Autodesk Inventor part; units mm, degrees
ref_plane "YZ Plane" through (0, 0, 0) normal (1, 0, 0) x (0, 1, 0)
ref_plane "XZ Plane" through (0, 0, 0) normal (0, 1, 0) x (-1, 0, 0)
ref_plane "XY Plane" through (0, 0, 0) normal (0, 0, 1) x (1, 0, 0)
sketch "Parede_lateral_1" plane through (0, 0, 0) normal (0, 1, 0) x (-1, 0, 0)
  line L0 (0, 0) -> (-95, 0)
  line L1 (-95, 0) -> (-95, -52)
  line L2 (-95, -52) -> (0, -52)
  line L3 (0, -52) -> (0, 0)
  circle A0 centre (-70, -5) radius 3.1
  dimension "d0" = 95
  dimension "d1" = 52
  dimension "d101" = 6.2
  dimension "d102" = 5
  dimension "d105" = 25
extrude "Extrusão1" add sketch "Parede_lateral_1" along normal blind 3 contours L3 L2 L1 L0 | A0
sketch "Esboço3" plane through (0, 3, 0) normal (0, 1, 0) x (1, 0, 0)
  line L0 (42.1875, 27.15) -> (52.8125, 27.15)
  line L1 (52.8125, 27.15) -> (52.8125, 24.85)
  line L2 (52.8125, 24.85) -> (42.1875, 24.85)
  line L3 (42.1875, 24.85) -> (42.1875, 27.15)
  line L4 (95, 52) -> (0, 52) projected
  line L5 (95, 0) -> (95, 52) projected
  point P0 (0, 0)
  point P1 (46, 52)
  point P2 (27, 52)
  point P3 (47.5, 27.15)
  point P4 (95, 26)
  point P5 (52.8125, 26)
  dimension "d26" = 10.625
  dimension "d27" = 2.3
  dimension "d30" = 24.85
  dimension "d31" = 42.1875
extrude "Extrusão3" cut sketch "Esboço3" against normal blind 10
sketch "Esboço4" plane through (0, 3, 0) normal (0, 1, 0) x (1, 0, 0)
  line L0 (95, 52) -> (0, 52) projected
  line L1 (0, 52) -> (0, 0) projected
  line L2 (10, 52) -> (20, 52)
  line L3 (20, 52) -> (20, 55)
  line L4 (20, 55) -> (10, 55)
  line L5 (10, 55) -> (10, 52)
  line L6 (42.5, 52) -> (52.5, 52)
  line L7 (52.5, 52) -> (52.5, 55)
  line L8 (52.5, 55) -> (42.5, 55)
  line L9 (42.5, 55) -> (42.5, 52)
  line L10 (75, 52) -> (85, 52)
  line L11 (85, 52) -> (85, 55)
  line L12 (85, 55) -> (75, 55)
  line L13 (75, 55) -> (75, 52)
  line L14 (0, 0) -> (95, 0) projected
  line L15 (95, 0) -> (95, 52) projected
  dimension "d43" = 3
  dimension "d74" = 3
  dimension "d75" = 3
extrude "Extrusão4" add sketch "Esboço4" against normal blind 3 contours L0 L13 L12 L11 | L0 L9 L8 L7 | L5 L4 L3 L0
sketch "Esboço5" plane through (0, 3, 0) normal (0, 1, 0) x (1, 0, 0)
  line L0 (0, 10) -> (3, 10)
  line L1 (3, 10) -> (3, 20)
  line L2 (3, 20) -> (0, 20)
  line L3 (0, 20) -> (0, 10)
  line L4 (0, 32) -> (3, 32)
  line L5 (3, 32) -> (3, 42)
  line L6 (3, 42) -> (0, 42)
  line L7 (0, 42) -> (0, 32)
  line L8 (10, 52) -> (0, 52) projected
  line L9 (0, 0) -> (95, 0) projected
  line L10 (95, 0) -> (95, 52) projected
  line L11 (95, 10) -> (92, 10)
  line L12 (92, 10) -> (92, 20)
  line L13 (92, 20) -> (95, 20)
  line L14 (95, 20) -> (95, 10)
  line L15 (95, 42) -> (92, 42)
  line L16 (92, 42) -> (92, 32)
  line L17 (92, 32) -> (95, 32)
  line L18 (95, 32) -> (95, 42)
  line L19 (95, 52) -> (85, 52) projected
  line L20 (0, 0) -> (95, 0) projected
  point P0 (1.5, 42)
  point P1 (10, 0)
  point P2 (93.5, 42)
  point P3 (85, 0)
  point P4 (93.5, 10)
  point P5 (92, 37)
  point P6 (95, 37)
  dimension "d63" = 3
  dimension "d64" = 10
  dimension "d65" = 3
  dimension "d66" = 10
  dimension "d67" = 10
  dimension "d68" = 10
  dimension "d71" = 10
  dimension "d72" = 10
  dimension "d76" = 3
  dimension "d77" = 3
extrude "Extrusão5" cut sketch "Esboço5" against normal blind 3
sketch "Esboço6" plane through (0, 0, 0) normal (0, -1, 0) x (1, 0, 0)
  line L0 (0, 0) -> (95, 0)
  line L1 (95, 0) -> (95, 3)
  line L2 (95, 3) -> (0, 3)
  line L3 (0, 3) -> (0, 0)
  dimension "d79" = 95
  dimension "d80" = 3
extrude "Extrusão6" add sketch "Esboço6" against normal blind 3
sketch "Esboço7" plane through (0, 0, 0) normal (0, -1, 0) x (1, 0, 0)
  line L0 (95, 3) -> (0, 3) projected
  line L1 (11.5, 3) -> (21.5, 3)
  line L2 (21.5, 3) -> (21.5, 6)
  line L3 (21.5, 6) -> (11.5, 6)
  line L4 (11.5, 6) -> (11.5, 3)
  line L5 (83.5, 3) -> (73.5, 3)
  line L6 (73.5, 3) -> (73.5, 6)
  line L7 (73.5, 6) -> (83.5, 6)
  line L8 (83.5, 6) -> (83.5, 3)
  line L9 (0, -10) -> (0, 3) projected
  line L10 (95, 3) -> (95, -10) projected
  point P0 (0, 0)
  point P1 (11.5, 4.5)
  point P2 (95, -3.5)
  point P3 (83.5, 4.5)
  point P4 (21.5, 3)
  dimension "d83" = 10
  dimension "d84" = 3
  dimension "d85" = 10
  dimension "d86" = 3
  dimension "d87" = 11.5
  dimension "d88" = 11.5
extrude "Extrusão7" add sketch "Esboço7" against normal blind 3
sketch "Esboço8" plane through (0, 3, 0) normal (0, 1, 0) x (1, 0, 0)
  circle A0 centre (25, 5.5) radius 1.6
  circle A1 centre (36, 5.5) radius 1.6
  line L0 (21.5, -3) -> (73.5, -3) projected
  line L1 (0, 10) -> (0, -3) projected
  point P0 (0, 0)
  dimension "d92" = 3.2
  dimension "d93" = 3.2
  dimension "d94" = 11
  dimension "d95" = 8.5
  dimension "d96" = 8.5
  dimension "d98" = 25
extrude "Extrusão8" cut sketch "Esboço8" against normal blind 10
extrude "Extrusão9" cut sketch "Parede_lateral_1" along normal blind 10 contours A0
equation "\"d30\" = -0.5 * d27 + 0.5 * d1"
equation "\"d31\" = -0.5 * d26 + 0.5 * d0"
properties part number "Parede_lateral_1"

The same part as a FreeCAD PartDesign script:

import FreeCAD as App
import Part
import Sketcher

doc = App.newDocument("Part")
params = doc.addObject("Spreadsheet::Sheet", "Params")
for row, (alias, value) in enumerate([
    ("sketch1_width", "95 mm"),
    ("sketch1_height", "52 mm"),
    ("pad1_length", "3 mm"),
    ("sketch2_height", "2.3 mm"),
    ("pocket1_length", "10 mm"),
    ("sketch3_height", "3 mm"),
    ("sketch3_width", "10 mm"),
    ("pad2_length", "3 mm"),
    ("sketch4_width", "3 mm"),
    ("sketch4_height", "10 mm"),
    ("pocket2_length", "3 mm"),
    ("sketch5_width", "95 mm"),
    ("sketch5_height", "3 mm"),
    ("pad3_length", "3 mm"),
    ("sketch6_width", "10 mm"),
    ("sketch6_height", "3 mm"),
    ("pad4_length", "3 mm"),
    ("sketch7_diameter", "3.2 mm"),
    ("pocket3_length", "10 mm"),
    ("sketch8_diameter", "6.2 mm"),
    ("pocket4_length", "10 mm"),
], start=1):
    params.set(f"A{row}", alias)
    params.set(f"B{row}", "=" + value)
    params.setAlias(f"B{row}", alias)

body = doc.addObject("PartDesign::Body", "Body")

sketch1 = body.newObject("Sketcher::SketchObject", "Sketch")
sketch1.AttachmentSupport = (doc.getObject("XZ_Plane"), [""])
sketch1.MapMode = "FlatFace"
sketch1.addGeometry(Part.LineSegment(App.Vector(0, -52, 0), App.Vector(0, 0, 0)), False)
sketch1.addGeometry(Part.LineSegment(App.Vector(0, 0, 0), App.Vector(95, 0, 0)), False)
sketch1.addGeometry(Part.LineSegment(App.Vector(95, 0, 0), App.Vector(95, -52, 0)), False)
sketch1.addGeometry(Part.LineSegment(App.Vector(95, -52, 0), App.Vector(0, -52, 0)), False)
sketch1.addConstraint(Sketcher.Constraint("Coincident", 0, 2, 1, 1))
sketch1.addConstraint(Sketcher.Constraint("Coincident", 1, 2, 2, 1))
sketch1.addConstraint(Sketcher.Constraint("Coincident", 2, 2, 3, 1))
sketch1.addConstraint(Sketcher.Constraint("Coincident", 3, 2, 0, 1))
sketch1.addConstraint(Sketcher.Constraint("Vertical", 0))
sketch1.addConstraint(Sketcher.Constraint("Horizontal", 1))
sketch1.addConstraint(Sketcher.Constraint("Vertical", 2))
sketch1.addConstraint(Sketcher.Constraint("Horizontal", 3))
sketch1.addConstraint(Sketcher.Constraint("Coincident", 0, 2, -1, 1))
sketch1.addConstraint(Sketcher.Constraint("DistanceX", 1, 1, 1, 2, 95.0))
sketch1.addConstraint(Sketcher.Constraint("DistanceY", 0, 1, 0, 2, 52.0))
sketch1.setExpression("Constraints[9]", "Params.sketch1_width")
sketch1.setExpression("Constraints[10]", "Params.sketch1_height")
pad1 = body.newObject("PartDesign::Pad", "Pad")
pad1.Profile = sketch1
pad1.setExpression("Length", "Params.pad1_length")
pad1.Reversed = True

sketch2 = body.newObject("Sketcher::SketchObject", "Sketch001")
sketch2.AttachmentSupport = (doc.getObject("XZ_Plane"), [""])
sketch2.MapMode = "FlatFace"
sketch2.AttachmentOffset = App.Placement(App.Vector(0, 0, -3), App.Rotation())
sketch2.addGeometry(Part.LineSegment(App.Vector(52.8125, -27.15, 0), App.Vector(42.1875, -27.15, 0)), False)
sketch2.addGeometry(Part.LineSegment(App.Vector(42.1875, -27.15, 0), App.Vector(42.1875, -24.85, 0)), False)
sketch2.addGeometry(Part.LineSegment(App.Vector(42.1875, -24.85, 0), App.Vector(52.8125, -24.85, 0)), False)
sketch2.addGeometry(Part.LineSegment(App.Vector(52.8125, -24.85, 0), App.Vector(52.8125, -27.15, 0)), False)
sketch2.addConstraint(Sketcher.Constraint("Coincident", 0, 2, 1, 1))
sketch2.addConstraint(Sketcher.Constraint("Coincident", 1, 2, 2, 1))
sketch2.addConstraint(Sketcher.Constraint("Coincident", 2, 2, 3, 1))
sketch2.addConstraint(Sketcher.Constraint("Coincident", 3, 2, 0, 1))
sketch2.addConstraint(Sketcher.Constraint("Horizontal", 0))
sketch2.addConstraint(Sketcher.Constraint("Vertical", 1))
sketch2.addConstraint(Sketcher.Constraint("Horizontal", 2))
sketch2.addConstraint(Sketcher.Constraint("Vertical", 3))
sketch2.addConstraint(Sketcher.Constraint("DistanceY", 1, 1, 1, 2, 2.3))
sketch2.addConstraint(Sketcher.Constraint("DistanceX", 0, 2, 0, 1, 10.625))
sketch2.addConstraint(Sketcher.Constraint("DistanceY", 1, 2, -1, 1, 24.85))
sketch2.addConstraint(Sketcher.Constraint("DistanceX", -1, 1, 0, 2, 42.1875))
sketch2.setExpression("Constraints[8]", "Params.sketch2_height")
pocket1 = body.newObject("PartDesign::Pocket", "Pocket")
pocket1.Profile = sketch2
pocket1.setExpression("Length", "Params.pocket1_length")
pocket1.Reversed = True

sketch3 = body.newObject("Sketcher::SketchObject", "Sketch002")
sketch3.AttachmentSupport = (doc.getObject("XZ_Plane"), [""])
sketch3.MapMode = "FlatFace"
sketch3.AttachmentOffset = App.Placement(App.Vector(0, 0, -3), App.Rotation())
sketch3.addGeometry(Part.LineSegment(App.Vector(75, -52, 0), App.Vector(85, -52, 0)), False)
sketch3.addGeometry(Part.LineSegment(App.Vector(85, -52, 0), App.Vector(85, -55, 0)), False)
sketch3.addGeometry(Part.LineSegment(App.Vector(85, -55, 0), App.Vector(75, -55, 0)), False)
sketch3.addGeometry(Part.LineSegment(App.Vector(75, -55, 0), App.Vector(75, -52, 0)), False)
sketch3.addGeometry(Part.LineSegment(App.Vector(42.5, -52, 0), App.Vector(52.5, -52, 0)), False)
sketch3.addGeometry(Part.LineSegment(App.Vector(52.5, -52, 0), App.Vector(52.5, -55, 0)), False)
sketch3.addGeometry(Part.LineSegment(App.Vector(52.5, -55, 0), App.Vector(42.5, -55, 0)), False)
sketch3.addGeometry(Part.LineSegment(App.Vector(42.5, -55, 0), App.Vector(42.5, -52, 0)), False)
sketch3.addGeometry(Part.LineSegment(App.Vector(10, -55, 0), App.Vector(10, -52, 0)), False)
sketch3.addGeometry(Part.LineSegment(App.Vector(10, -52, 0), App.Vector(20, -52, 0)), False)
sketch3.addGeometry(Part.LineSegment(App.Vector(20, -52, 0), App.Vector(20, -55, 0)), False)
sketch3.addGeometry(Part.LineSegment(App.Vector(20, -55, 0), App.Vector(10, -55, 0)), False)
sketch3.addConstraint(Sketcher.Constraint("Coincident", 0, 2, 1, 1))
sketch3.addConstraint(Sketcher.Constraint("Coincident", 1, 2, 2, 1))
sketch3.addConstraint(Sketcher.Constraint("Coincident", 2, 2, 3, 1))
sketch3.addConstraint(Sketcher.Constraint("Coincident", 3, 2, 0, 1))
sketch3.addConstraint(Sketcher.Constraint("Coincident", 4, 2, 5, 1))
sketch3.addConstraint(Sketcher.Constraint("Coincident", 5, 2, 6, 1))
sketch3.addConstraint(Sketcher.Constraint("Coincident", 6, 2, 7, 1))
sketch3.addConstraint(Sketcher.Constraint("Coincident", 7, 2, 4, 1))
sketch3.addConstraint(Sketcher.Constraint("Coincident", 8, 2, 9, 1))
sketch3.addConstraint(Sketcher.Constraint("Coincident", 9, 2, 10, 1))
sketch3.addConstraint(Sketcher.Constraint("Coincident", 10, 2, 11, 1))
sketch3.addConstraint(Sketcher.Constraint("Coincident", 11, 2, 8, 1))
sketch3.addConstraint(Sketcher.Constraint("Horizontal", 0))
sketch3.addConstraint(Sketcher.Constraint("Vertical", 1))
sketch3.addConstraint(Sketcher.Constraint("Horizontal", 2))
sketch3.addConstraint(Sketcher.Constraint("Vertical", 3))
sketch3.addConstraint(Sketcher.Constraint("Horizontal", 4))
sketch3.addConstraint(Sketcher.Constraint("Vertical", 5))
sketch3.addConstraint(Sketcher.Constraint("Horizontal", 6))
sketch3.addConstraint(Sketcher.Constraint("Vertical", 7))
sketch3.addConstraint(Sketcher.Constraint("Vertical", 8))
sketch3.addConstraint(Sketcher.Constraint("Horizontal", 9))
sketch3.addConstraint(Sketcher.Constraint("Vertical", 10))
sketch3.addConstraint(Sketcher.Constraint("Horizontal", 11))
sketch3.addConstraint(Sketcher.Constraint("Horizontal", 3, 2, 4, 2))
sketch3.addConstraint(Sketcher.Constraint("Horizontal", 2, 2, 5, 2))
sketch3.addConstraint(Sketcher.Constraint("Horizontal", 7, 2, 8, 2))
sketch3.addConstraint(Sketcher.Constraint("Horizontal", 6, 2, 10, 2))
sketch3.addConstraint(Sketcher.Constraint("Equal", 2, 4))
sketch3.addConstraint(Sketcher.Constraint("Equal", 6, 9))
sketch3.addConstraint(Sketcher.Constraint("DistanceY", 1, 2, 1, 1, 3.0))
sketch3.addConstraint(Sketcher.Constraint("DistanceX", 0, 1, 0, 2, 10.0))
sketch3.addConstraint(Sketcher.Constraint("DistanceX", -1, 1, 0, 2, 85.0))
sketch3.addConstraint(Sketcher.Constraint("DistanceY", 0, 2, -1, 1, 52.0))
sketch3.addConstraint(Sketcher.Constraint("DistanceX", -1, 1, 8, 2, 10.0))
sketch3.addConstraint(Sketcher.Constraint("DistanceX", -1, 1, 4, 2, 52.5))
sketch3.setExpression("Constraints[30]", "Params.sketch3_height")
sketch3.setExpression("Constraints[31]", "Params.sketch3_width")
pad2 = body.newObject("PartDesign::Pad", "Pad001")
pad2.Profile = sketch3
pad2.setExpression("Length", "Params.pad2_length")

sketch4 = body.newObject("Sketcher::SketchObject", "Sketch003")
sketch4.AttachmentSupport = (doc.getObject("XZ_Plane"), [""])
sketch4.MapMode = "FlatFace"
sketch4.AttachmentOffset = App.Placement(App.Vector(0, 0, -3), App.Rotation())
sketch4.addGeometry(Part.LineSegment(App.Vector(0, -20, 0), App.Vector(0, -10, 0)), False)
sketch4.addGeometry(Part.LineSegment(App.Vector(0, -10, 0), App.Vector(3, -10, 0)), False)
sketch4.addGeometry(Part.LineSegment(App.Vector(3, -10, 0), App.Vector(3, -20, 0)), False)
sketch4.addGeometry(Part.LineSegment(App.Vector(3, -20, 0), App.Vector(0, -20, 0)), False)
sketch4.addGeometry(Part.LineSegment(App.Vector(0, -42, 0), App.Vector(0, -32, 0)), False)
sketch4.addGeometry(Part.LineSegment(App.Vector(0, -32, 0), App.Vector(3, -32, 0)), False)
sketch4.addGeometry(Part.LineSegment(App.Vector(3, -32, 0), App.Vector(3, -42, 0)), False)
sketch4.addGeometry(Part.LineSegment(App.Vector(3, -42, 0), App.Vector(0, -42, 0)), False)
sketch4.addGeometry(Part.LineSegment(App.Vector(92, -10, 0), App.Vector(95, -10, 0)), False)
sketch4.addGeometry(Part.LineSegment(App.Vector(95, -10, 0), App.Vector(95, -20, 0)), False)
sketch4.addGeometry(Part.LineSegment(App.Vector(95, -20, 0), App.Vector(92, -20, 0)), False)
sketch4.addGeometry(Part.LineSegment(App.Vector(92, -20, 0), App.Vector(92, -10, 0)), False)
sketch4.addGeometry(Part.LineSegment(App.Vector(92, -32, 0), App.Vector(95, -32, 0)), False)
sketch4.addGeometry(Part.LineSegment(App.Vector(95, -32, 0), App.Vector(95, -42, 0)), False)
sketch4.addGeometry(Part.LineSegment(App.Vector(95, -42, 0), App.Vector(92, -42, 0)), False)
sketch4.addGeometry(Part.LineSegment(App.Vector(92, -42, 0), App.Vector(92, -32, 0)), False)
sketch4.addConstraint(Sketcher.Constraint("Coincident", 0, 2, 1, 1))
sketch4.addConstraint(Sketcher.Constraint("Coincident", 1, 2, 2, 1))
sketch4.addConstraint(Sketcher.Constraint("Coincident", 2, 2, 3, 1))
sketch4.addConstraint(Sketcher.Constraint("Coincident", 3, 2, 0, 1))
sketch4.addConstraint(Sketcher.Constraint("Coincident", 4, 2, 5, 1))
sketch4.addConstraint(Sketcher.Constraint("Coincident", 5, 2, 6, 1))
sketch4.addConstraint(Sketcher.Constraint("Coincident", 6, 2, 7, 1))
sketch4.addConstraint(Sketcher.Constraint("Coincident", 7, 2, 4, 1))
sketch4.addConstraint(Sketcher.Constraint("Coincident", 8, 2, 9, 1))
sketch4.addConstraint(Sketcher.Constraint("Coincident", 9, 2, 10, 1))
sketch4.addConstraint(Sketcher.Constraint("Coincident", 10, 2, 11, 1))
sketch4.addConstraint(Sketcher.Constraint("Coincident", 11, 2, 8, 1))
sketch4.addConstraint(Sketcher.Constraint("Coincident", 12, 2, 13, 1))
sketch4.addConstraint(Sketcher.Constraint("Coincident", 13, 2, 14, 1))
sketch4.addConstraint(Sketcher.Constraint("Coincident", 14, 2, 15, 1))
sketch4.addConstraint(Sketcher.Constraint("Coincident", 15, 2, 12, 1))
sketch4.addConstraint(Sketcher.Constraint("Vertical", 0))
sketch4.addConstraint(Sketcher.Constraint("Horizontal", 1))
sketch4.addConstraint(Sketcher.Constraint("Vertical", 2))
sketch4.addConstraint(Sketcher.Constraint("Horizontal", 3))
sketch4.addConstraint(Sketcher.Constraint("Vertical", 4))
sketch4.addConstraint(Sketcher.Constraint("Horizontal", 5))
sketch4.addConstraint(Sketcher.Constraint("Vertical", 6))
sketch4.addConstraint(Sketcher.Constraint("Horizontal", 7))
sketch4.addConstraint(Sketcher.Constraint("Horizontal", 8))
sketch4.addConstraint(Sketcher.Constraint("Vertical", 9))
sketch4.addConstraint(Sketcher.Constraint("Horizontal", 10))
sketch4.addConstraint(Sketcher.Constraint("Vertical", 11))
sketch4.addConstraint(Sketcher.Constraint("Horizontal", 12))
sketch4.addConstraint(Sketcher.Constraint("Vertical", 13))
sketch4.addConstraint(Sketcher.Constraint("Horizontal", 14))
sketch4.addConstraint(Sketcher.Constraint("Vertical", 15))
sketch4.addConstraint(Sketcher.Constraint("PointOnObject", 0, 2, -2))
sketch4.addConstraint(Sketcher.Constraint("PointOnObject", 4, 2, -2))
sketch4.addConstraint(Sketcher.Constraint("Horizontal", 1, 2, 8, 2))
sketch4.addConstraint(Sketcher.Constraint("Horizontal", 3, 2, 9, 2))
sketch4.addConstraint(Sketcher.Constraint("Horizontal", 5, 2, 12, 2))
sketch4.addConstraint(Sketcher.Constraint("Horizontal", 7, 2, 13, 2))
sketch4.addConstraint(Sketcher.Constraint("Vertical", 2, 2, 5, 2))
sketch4.addConstraint(Sketcher.Constraint("Vertical", 9, 2, 12, 2))
sketch4.addConstraint(Sketcher.Constraint("Vertical", 11, 2, 14, 2))
sketch4.addConstraint(Sketcher.Constraint("Equal", 7, 8))
sketch4.addConstraint(Sketcher.Constraint("Equal", 2, 4))
sketch4.addConstraint(Sketcher.Constraint("DistanceX", 1, 1, 1, 2, 3.0))
sketch4.addConstraint(Sketcher.Constraint("DistanceY", 0, 1, 0, 2, 10.0))
sketch4.addConstraint(Sketcher.Constraint("DistanceY", 0, 2, -1, 1, 10.0))
sketch4.addConstraint(Sketcher.Constraint("DistanceY", 4, 2, -1, 1, 32.0))
sketch4.addConstraint(Sketcher.Constraint("DistanceX", -1, 1, 8, 2, 95.0))
sketch4.setExpression("Constraints[43]", "Params.sketch4_width")
sketch4.setExpression("Constraints[44]", "Params.sketch4_height")
pocket2 = body.newObject("PartDesign::Pocket", "Pocket001")
pocket2.Profile = sketch4
pocket2.setExpression("Length", "Params.pocket2_length")
pocket2.Reversed = True

sketch5 = body.newObject("Sketcher::SketchObject", "Sketch004")
sketch5.AttachmentSupport = (doc.getObject("XZ_Plane"), [""])
sketch5.MapMode = "FlatFace"
sketch5.addGeometry(Part.LineSegment(App.Vector(0, 3, 0), App.Vector(0, 0, 0)), False)
sketch5.addGeometry(Part.LineSegment(App.Vector(0, 0, 0), App.Vector(95, 0, 0)), False)
sketch5.addGeometry(Part.LineSegment(App.Vector(95, 0, 0), App.Vector(95, 3, 0)), False)
sketch5.addGeometry(Part.LineSegment(App.Vector(95, 3, 0), App.Vector(0, 3, 0)), False)
sketch5.addConstraint(Sketcher.Constraint("Coincident", 0, 2, 1, 1))
sketch5.addConstraint(Sketcher.Constraint("Coincident", 1, 2, 2, 1))
sketch5.addConstraint(Sketcher.Constraint("Coincident", 2, 2, 3, 1))
sketch5.addConstraint(Sketcher.Constraint("Coincident", 3, 2, 0, 1))
sketch5.addConstraint(Sketcher.Constraint("Vertical", 0))
sketch5.addConstraint(Sketcher.Constraint("Horizontal", 1))
sketch5.addConstraint(Sketcher.Constraint("Vertical", 2))
sketch5.addConstraint(Sketcher.Constraint("Horizontal", 3))
sketch5.addConstraint(Sketcher.Constraint("Coincident", 0, 2, -1, 1))
sketch5.addConstraint(Sketcher.Constraint("DistanceX", 1, 1, 1, 2, 95.0))
sketch5.addConstraint(Sketcher.Constraint("DistanceY", 0, 2, 0, 1, 3.0))
sketch5.setExpression("Constraints[9]", "Params.sketch5_width")
sketch5.setExpression("Constraints[10]", "Params.sketch5_height")
pad3 = body.newObject("PartDesign::Pad", "Pad002")
pad3.Profile = sketch5
pad3.setExpression("Length", "Params.pad3_length")
pad3.Reversed = True

sketch6 = body.newObject("Sketcher::SketchObject", "Sketch005")
sketch6.AttachmentSupport = (doc.getObject("XZ_Plane"), [""])
sketch6.MapMode = "FlatFace"
sketch6.addGeometry(Part.LineSegment(App.Vector(11.5, 3, 0), App.Vector(21.5, 3, 0)), False)
sketch6.addGeometry(Part.LineSegment(App.Vector(21.5, 3, 0), App.Vector(21.5, 6, 0)), False)
sketch6.addGeometry(Part.LineSegment(App.Vector(21.5, 6, 0), App.Vector(11.5, 6, 0)), False)
sketch6.addGeometry(Part.LineSegment(App.Vector(11.5, 6, 0), App.Vector(11.5, 3, 0)), False)
sketch6.addGeometry(Part.LineSegment(App.Vector(73.5, 3, 0), App.Vector(83.5, 3, 0)), False)
sketch6.addGeometry(Part.LineSegment(App.Vector(83.5, 3, 0), App.Vector(83.5, 6, 0)), False)
sketch6.addGeometry(Part.LineSegment(App.Vector(83.5, 6, 0), App.Vector(73.5, 6, 0)), False)
sketch6.addGeometry(Part.LineSegment(App.Vector(73.5, 6, 0), App.Vector(73.5, 3, 0)), False)
sketch6.addConstraint(Sketcher.Constraint("Coincident", 0, 2, 1, 1))
sketch6.addConstraint(Sketcher.Constraint("Coincident", 1, 2, 2, 1))
sketch6.addConstraint(Sketcher.Constraint("Coincident", 2, 2, 3, 1))
sketch6.addConstraint(Sketcher.Constraint("Coincident", 3, 2, 0, 1))
sketch6.addConstraint(Sketcher.Constraint("Coincident", 4, 2, 5, 1))
sketch6.addConstraint(Sketcher.Constraint("Coincident", 5, 2, 6, 1))
sketch6.addConstraint(Sketcher.Constraint("Coincident", 6, 2, 7, 1))
sketch6.addConstraint(Sketcher.Constraint("Coincident", 7, 2, 4, 1))
sketch6.addConstraint(Sketcher.Constraint("Horizontal", 0))
sketch6.addConstraint(Sketcher.Constraint("Vertical", 1))
sketch6.addConstraint(Sketcher.Constraint("Horizontal", 2))
sketch6.addConstraint(Sketcher.Constraint("Vertical", 3))
sketch6.addConstraint(Sketcher.Constraint("Horizontal", 4))
sketch6.addConstraint(Sketcher.Constraint("Vertical", 5))
sketch6.addConstraint(Sketcher.Constraint("Horizontal", 6))
sketch6.addConstraint(Sketcher.Constraint("Vertical", 7))
sketch6.addConstraint(Sketcher.Constraint("Horizontal", 3, 2, 4, 2))
sketch6.addConstraint(Sketcher.Constraint("Horizontal", 2, 2, 5, 2))
sketch6.addConstraint(Sketcher.Constraint("Equal", 2, 4))
sketch6.addConstraint(Sketcher.Constraint("DistanceX", 0, 1, 0, 2, 10.0))
sketch6.addConstraint(Sketcher.Constraint("DistanceY", 1, 1, 1, 2, 3.0))
sketch6.addConstraint(Sketcher.Constraint("DistanceY", -1, 1, 0, 2, 3.0))
sketch6.addConstraint(Sketcher.Constraint("DistanceX", -1, 1, 2, 2, 11.5))
sketch6.addConstraint(Sketcher.Constraint("DistanceX", 0, 2, 4, 2, 62.0))
sketch6.setExpression("Constraints[19]", "Params.sketch6_width")
sketch6.setExpression("Constraints[20]", "Params.sketch6_height")
pad4 = body.newObject("PartDesign::Pad", "Pad003")
pad4.Profile = sketch6
pad4.setExpression("Length", "Params.pad4_length")
pad4.Reversed = True

sketch7 = body.newObject("Sketcher::SketchObject", "Sketch006")
sketch7.AttachmentSupport = (doc.getObject("XZ_Plane"), [""])
sketch7.MapMode = "FlatFace"
sketch7.AttachmentOffset = App.Placement(App.Vector(0, 0, -3), App.Rotation())
sketch7.addGeometry(Part.Circle(App.Vector(25, -5.5, 0), App.Vector(0, 0, 1), 1.6), False)
sketch7.addGeometry(Part.Circle(App.Vector(36, -5.5, 0), App.Vector(0, 0, 1), 1.6), False)
sketch7.addConstraint(Sketcher.Constraint("Equal", 0, 1))
sketch7.addConstraint(Sketcher.Constraint("Horizontal", 0, 3, 1, 3))
sketch7.addConstraint(Sketcher.Constraint("Diameter", 0, 3.2))
sketch7.addConstraint(Sketcher.Constraint("DistanceX", -1, 1, 0, 3, 25.0))
sketch7.addConstraint(Sketcher.Constraint("DistanceX", 0, 3, 1, 3, 11.0))
sketch7.addConstraint(Sketcher.Constraint("DistanceY", 0, 3, -1, 1, 5.5))
sketch7.setExpression("Constraints[2]", "Params.sketch7_diameter")
pocket3 = body.newObject("PartDesign::Pocket", "Pocket002")
pocket3.Profile = sketch7
pocket3.setExpression("Length", "Params.pocket3_length")
pocket3.Reversed = True

sketch8 = body.newObject("Sketcher::SketchObject", "Sketch007")
sketch8.AttachmentSupport = (doc.getObject("XZ_Plane"), [""])
sketch8.MapMode = "FlatFace"
sketch8.addGeometry(Part.Circle(App.Vector(70, -5, 0), App.Vector(0, 0, 1), 3.1), False)
sketch8.addConstraint(Sketcher.Constraint("Diameter", 0, 6.2))
sketch8.addConstraint(Sketcher.Constraint("DistanceY", 0, 3, -1, 1, 5.0))
sketch8.addConstraint(Sketcher.Constraint("DistanceX", -1, 1, 0, 3, 70.0))
sketch8.setExpression("Constraints[0]", "Params.sketch8_diameter")
pocket4 = body.newObject("PartDesign::Pocket", "Pocket003")
pocket4.Profile = sketch8
pocket4.setExpression("Length", "Params.pocket4_length")

doc.recompute()
